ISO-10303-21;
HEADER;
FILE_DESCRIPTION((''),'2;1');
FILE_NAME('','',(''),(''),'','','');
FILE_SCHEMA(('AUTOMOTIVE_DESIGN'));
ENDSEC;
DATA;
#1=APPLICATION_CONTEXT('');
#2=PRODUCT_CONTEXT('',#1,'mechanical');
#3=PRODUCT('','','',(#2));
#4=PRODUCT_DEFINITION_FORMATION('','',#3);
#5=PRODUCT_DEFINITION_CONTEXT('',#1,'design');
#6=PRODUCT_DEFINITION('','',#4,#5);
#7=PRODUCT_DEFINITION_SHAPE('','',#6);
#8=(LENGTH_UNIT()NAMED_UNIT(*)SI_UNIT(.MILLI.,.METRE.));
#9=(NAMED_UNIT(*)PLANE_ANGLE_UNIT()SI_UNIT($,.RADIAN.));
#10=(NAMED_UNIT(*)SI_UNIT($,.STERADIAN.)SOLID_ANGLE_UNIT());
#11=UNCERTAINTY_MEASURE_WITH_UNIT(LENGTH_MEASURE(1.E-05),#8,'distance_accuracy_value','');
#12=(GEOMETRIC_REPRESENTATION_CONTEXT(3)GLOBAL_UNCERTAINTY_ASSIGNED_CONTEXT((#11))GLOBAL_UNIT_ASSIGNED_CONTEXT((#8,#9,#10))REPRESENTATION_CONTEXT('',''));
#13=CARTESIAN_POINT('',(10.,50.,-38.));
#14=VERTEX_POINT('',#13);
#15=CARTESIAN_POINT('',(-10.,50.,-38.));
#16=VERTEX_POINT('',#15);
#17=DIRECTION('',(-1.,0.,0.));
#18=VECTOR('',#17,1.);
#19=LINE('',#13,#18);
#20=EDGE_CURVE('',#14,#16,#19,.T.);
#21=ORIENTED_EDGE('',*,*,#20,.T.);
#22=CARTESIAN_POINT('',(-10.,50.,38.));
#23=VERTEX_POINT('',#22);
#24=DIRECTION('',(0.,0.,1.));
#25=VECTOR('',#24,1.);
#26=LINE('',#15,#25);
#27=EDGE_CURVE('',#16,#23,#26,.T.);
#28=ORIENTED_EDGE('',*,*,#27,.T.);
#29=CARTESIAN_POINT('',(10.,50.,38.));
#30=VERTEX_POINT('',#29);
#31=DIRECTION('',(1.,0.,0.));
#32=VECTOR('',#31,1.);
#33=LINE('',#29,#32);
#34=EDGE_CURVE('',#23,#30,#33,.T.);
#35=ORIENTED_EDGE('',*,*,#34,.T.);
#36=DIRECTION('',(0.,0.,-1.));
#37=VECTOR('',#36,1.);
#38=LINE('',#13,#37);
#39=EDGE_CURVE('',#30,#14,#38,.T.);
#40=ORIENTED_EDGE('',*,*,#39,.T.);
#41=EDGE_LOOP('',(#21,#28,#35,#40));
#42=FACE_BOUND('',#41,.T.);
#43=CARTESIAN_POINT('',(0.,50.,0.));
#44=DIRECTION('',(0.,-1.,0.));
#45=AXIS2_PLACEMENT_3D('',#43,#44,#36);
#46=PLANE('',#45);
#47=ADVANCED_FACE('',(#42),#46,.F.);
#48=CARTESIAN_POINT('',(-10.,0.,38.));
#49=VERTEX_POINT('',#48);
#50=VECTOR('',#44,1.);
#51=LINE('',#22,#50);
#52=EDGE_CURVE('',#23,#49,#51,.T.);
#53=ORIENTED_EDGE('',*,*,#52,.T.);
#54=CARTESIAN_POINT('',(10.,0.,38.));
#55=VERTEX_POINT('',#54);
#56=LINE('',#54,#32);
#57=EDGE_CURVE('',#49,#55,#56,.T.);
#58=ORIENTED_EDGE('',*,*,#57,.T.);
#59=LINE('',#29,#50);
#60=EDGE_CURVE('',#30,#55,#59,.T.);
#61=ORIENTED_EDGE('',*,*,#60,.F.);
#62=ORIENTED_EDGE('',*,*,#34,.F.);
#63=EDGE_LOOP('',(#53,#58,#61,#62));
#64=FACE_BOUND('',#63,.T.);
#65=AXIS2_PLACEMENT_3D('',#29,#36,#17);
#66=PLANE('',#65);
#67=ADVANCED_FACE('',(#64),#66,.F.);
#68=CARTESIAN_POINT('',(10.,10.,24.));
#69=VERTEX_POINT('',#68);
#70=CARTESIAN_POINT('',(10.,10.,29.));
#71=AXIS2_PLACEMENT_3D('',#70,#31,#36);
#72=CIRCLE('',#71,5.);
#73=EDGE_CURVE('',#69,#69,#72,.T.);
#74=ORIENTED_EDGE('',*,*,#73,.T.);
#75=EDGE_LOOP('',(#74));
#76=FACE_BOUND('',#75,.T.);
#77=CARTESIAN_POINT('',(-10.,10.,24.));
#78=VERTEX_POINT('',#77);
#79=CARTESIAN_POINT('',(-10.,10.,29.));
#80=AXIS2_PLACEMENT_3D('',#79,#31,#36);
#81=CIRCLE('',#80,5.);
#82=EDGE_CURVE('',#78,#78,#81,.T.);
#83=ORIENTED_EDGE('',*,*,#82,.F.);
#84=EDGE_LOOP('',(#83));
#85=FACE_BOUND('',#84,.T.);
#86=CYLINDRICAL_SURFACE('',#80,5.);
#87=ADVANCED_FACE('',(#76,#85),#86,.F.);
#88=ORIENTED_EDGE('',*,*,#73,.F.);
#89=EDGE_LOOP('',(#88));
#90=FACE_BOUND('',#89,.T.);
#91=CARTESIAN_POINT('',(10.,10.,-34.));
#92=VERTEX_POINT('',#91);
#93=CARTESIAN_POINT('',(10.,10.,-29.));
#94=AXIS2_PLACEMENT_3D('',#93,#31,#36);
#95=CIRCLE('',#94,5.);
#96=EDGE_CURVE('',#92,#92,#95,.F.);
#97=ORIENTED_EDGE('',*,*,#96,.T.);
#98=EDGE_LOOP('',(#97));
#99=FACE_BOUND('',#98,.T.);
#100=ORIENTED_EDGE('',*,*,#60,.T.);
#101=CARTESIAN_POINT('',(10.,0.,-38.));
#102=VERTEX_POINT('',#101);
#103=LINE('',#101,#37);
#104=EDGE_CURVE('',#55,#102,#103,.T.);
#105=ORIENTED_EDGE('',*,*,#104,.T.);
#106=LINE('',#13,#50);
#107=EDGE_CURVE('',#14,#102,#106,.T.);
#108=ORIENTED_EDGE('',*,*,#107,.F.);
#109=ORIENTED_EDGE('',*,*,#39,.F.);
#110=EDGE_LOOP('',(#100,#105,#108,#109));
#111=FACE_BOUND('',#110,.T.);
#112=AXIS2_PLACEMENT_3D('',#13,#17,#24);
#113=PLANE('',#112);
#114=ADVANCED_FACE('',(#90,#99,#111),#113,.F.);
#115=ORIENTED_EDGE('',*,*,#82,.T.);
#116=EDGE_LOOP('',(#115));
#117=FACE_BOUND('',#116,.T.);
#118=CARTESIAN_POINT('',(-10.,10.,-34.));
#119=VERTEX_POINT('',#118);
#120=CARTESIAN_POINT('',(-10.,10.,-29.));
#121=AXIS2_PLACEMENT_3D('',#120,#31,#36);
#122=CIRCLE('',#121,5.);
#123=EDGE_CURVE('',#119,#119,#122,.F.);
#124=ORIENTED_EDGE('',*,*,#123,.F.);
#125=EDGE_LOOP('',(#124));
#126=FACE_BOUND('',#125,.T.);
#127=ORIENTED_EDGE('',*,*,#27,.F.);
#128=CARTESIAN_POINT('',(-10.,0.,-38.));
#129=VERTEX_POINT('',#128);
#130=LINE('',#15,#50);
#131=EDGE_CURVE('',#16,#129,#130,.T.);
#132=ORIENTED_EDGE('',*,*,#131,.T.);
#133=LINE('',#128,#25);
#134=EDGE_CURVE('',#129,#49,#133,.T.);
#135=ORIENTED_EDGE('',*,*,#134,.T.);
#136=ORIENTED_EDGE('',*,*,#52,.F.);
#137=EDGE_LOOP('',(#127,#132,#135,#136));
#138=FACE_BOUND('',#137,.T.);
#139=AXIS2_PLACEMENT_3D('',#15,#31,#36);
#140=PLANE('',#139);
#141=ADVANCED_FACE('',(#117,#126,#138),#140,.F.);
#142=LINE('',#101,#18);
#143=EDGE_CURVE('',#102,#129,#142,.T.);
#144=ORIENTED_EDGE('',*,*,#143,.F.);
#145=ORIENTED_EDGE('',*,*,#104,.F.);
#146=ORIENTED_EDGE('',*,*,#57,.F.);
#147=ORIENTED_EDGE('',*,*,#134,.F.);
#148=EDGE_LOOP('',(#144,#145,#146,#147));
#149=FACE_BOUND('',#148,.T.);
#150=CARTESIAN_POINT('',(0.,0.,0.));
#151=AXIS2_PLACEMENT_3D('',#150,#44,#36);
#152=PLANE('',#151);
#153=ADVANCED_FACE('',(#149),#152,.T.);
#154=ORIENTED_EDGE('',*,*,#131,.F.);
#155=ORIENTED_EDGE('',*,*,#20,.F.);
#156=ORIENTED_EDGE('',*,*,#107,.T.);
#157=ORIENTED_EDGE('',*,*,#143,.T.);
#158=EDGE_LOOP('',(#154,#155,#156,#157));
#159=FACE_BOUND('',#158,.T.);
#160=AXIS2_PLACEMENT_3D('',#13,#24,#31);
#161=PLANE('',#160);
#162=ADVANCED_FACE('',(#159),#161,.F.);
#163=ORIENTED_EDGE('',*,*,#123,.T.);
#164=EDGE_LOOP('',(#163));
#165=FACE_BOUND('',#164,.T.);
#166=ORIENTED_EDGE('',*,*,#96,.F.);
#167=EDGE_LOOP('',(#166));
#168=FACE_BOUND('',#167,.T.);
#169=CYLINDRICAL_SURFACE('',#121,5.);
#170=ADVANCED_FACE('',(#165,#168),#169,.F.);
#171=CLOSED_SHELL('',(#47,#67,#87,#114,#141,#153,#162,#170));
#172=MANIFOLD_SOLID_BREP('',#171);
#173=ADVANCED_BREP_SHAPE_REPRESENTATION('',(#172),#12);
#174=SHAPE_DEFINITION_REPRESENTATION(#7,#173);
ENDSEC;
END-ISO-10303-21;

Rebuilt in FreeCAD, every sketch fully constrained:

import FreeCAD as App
import Part
import Sketcher


def add_polygon(sketch, points):
    """Adds a closed chain of lines whose ends are joined by coincident constraints."""
    first, n = sketch.GeometryCount, len(points)
    for a, b in zip(points, points[1:] + points[:1]):
        sketch.addGeometry(Part.LineSegment(App.Vector(*a, 0), App.Vector(*b, 0)), False)
    for i in range(n):
        sketch.addConstraint(Sketcher.Constraint("Coincident", first + i, 2, first + (i + 1) % n, 1))

doc = App.newDocument("Part")
body = doc.addObject("PartDesign::Body", "Body")

sketch1 = body.newObject("Sketcher::SketchObject", "Sketch")
sketch1.AttachmentSupport = (doc.getObject("XZ_Plane"), [""])
sketch1.MapMode = "FlatFace"
add_polygon(sketch1, [(-10, -38), (-10, 38), (10, 38), (10, -38)])
sketch1.addConstraint([
    Sketcher.Constraint("Vertical", 0),
    Sketcher.Constraint("Horizontal", 1),
    Sketcher.Constraint("Vertical", 2),
    Sketcher.Constraint("Horizontal", 3),
    Sketcher.Constraint("Symmetric", 0, 2, 2, 2, -1, 1),
    Sketcher.Constraint("DistanceX", 1, 1, 1, 2, 20.0),
    Sketcher.Constraint("DistanceY", 0, 1, 0, 2, 76.0),
])
pad1 = body.newObject("PartDesign::Pad", "Pad")
pad1.Profile = sketch1
pad1.Length = 50
pad1.Reversed = True

sketch2 = body.newObject("Sketcher::SketchObject", "Sketch001")
sketch2.AttachmentSupport = (doc.getObject("YZ_Plane"), [""])
sketch2.MapMode = "FlatFace"
sketch2.AttachmentOffset = App.Placement(App.Vector(0, 0, 10), App.Rotation())
sketch2.addGeometry([
    Part.Circle(App.Vector(10, 29, 0), App.Vector(0, 0, 1), 5),
    Part.Circle(App.Vector(10, -29, 0), App.Vector(0, 0, 1), 5),
], False)
sketch2.addConstraint([
    Sketcher.Constraint("Equal", 0, 1),
    Sketcher.Constraint("Symmetric", 0, 3, 1, 3, -1),
    Sketcher.Constraint("Diameter", 0, 10.0),
    Sketcher.Constraint("DistanceX", -1, 1, 0, 3, 10.0),
    Sketcher.Constraint("DistanceY", -1, 1, 0, 3, 29.0),
])
pocket1 = body.newObject("PartDesign::Pocket", "Pocket")
pocket1.Profile = sketch2
pocket1.Type = "ThroughAll"

doc.recompute()
